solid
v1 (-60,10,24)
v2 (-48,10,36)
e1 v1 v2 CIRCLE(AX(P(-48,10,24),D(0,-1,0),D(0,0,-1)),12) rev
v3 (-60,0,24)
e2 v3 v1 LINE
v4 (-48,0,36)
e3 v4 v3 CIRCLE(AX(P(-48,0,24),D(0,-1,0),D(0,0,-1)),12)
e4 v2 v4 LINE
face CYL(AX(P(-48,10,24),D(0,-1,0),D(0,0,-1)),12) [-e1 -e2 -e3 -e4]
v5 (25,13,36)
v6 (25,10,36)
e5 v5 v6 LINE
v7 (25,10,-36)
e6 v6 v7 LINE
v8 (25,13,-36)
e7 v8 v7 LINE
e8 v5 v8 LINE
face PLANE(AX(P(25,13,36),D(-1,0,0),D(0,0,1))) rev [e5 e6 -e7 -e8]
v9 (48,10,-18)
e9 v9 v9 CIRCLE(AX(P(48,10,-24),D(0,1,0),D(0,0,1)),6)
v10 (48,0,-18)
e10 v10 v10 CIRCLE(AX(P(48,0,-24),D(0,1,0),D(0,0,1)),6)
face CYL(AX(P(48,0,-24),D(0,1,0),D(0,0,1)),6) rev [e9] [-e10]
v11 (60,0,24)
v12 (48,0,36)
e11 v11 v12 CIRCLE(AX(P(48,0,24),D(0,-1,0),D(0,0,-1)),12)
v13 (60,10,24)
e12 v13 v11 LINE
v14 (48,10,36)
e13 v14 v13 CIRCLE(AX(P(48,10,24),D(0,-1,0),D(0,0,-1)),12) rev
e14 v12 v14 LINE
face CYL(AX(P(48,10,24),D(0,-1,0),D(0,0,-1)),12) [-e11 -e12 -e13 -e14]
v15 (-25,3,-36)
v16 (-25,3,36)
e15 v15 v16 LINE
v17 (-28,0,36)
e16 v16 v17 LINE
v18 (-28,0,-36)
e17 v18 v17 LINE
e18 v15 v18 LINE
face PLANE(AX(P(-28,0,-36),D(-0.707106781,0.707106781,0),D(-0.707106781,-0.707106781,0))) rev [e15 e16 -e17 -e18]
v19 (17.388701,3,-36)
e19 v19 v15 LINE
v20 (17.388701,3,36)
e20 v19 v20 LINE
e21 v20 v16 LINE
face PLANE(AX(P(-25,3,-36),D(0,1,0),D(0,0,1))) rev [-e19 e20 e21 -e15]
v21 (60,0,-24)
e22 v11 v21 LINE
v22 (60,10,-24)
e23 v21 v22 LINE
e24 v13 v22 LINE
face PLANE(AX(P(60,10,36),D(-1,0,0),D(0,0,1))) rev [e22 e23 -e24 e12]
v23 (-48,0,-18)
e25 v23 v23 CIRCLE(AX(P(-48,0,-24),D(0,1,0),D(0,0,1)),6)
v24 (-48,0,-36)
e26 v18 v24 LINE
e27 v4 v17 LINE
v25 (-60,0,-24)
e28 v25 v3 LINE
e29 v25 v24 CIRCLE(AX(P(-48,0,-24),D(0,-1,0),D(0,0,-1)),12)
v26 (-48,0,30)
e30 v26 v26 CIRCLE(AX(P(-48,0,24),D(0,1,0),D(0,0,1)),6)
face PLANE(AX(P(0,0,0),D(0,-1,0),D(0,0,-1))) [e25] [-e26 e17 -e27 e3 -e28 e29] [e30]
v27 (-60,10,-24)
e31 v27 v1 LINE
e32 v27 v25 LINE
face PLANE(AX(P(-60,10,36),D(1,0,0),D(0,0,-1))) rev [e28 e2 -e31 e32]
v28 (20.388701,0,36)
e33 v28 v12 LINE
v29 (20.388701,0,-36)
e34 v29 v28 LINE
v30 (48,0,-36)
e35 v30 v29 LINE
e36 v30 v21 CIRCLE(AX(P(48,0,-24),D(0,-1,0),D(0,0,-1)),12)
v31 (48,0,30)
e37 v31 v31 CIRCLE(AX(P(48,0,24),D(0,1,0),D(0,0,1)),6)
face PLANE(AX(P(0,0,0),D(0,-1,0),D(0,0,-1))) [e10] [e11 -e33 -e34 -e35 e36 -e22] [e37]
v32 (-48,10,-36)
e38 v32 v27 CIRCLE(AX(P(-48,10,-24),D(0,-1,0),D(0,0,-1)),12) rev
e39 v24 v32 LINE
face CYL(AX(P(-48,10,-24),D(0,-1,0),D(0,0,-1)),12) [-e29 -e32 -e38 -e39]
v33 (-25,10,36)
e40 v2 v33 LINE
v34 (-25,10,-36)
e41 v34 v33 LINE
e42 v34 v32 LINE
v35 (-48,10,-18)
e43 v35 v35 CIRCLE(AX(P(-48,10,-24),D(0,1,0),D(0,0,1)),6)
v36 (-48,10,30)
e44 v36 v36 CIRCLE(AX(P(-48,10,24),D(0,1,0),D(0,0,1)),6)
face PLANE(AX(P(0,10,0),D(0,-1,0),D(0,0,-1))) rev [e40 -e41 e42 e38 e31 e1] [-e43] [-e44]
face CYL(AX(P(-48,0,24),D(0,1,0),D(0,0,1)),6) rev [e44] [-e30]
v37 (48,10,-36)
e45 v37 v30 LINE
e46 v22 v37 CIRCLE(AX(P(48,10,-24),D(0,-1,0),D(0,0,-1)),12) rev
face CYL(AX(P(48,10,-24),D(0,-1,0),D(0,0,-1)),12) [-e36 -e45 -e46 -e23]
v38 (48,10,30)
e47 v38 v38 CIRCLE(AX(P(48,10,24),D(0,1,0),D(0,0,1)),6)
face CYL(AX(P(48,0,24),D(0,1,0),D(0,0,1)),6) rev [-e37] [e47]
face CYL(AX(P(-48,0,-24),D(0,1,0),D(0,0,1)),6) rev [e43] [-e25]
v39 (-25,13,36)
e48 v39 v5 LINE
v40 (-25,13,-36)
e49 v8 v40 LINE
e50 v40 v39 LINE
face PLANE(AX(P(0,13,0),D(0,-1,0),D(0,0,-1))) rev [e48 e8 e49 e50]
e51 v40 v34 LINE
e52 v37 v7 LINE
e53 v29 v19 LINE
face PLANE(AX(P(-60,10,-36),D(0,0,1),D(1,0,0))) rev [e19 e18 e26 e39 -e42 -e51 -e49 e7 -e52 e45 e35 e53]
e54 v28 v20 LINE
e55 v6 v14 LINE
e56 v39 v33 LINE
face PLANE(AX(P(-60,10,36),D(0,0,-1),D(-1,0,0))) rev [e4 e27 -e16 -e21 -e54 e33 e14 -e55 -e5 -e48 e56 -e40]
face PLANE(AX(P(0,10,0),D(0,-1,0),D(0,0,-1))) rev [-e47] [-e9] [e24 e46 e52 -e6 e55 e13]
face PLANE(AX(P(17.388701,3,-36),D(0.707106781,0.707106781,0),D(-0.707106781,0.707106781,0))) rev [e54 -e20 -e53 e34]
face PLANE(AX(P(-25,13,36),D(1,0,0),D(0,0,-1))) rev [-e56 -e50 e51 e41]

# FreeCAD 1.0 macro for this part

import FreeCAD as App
import Part
import Sketcher

V = App.Vector


def edges_at(feature, points):
    """Names of the edges that pass closest to the given points."""
    edges = feature.Shape.Edges
    near = lambda p: min(range(len(edges)), key=lambda i: edges[i].distToShape(Part.Vertex(*p))[0])
    return sorted({f"Edge{near(p) + 1}" for p in points})

doc = App.newDocument("Part")
body = doc.addObject("PartDesign::Body", "Body")

# Sketch on XZ plane
sketch1 = body.newObject("Sketcher::SketchObject", "Sketch")
sketch1.AttachmentSupport = (doc.getObject("XZ_Plane"), [""])
sketch1.MapMode = "FlatFace"
sketch1.addGeometry(Part.LineSegment(V(-60, -36, 0), V(-60, 36, 0)), False)
sketch1.addGeometry(Part.LineSegment(V(-60, 36, 0), V(60, 36, 0)), False)
sketch1.addGeometry(Part.LineSegment(V(60, 36, 0), V(60, -36, 0)), False)
sketch1.addGeometry(Part.LineSegment(V(60, -36, 0), V(-60, -36, 0)), False)
sketch1.addConstraint(Sketcher.Constraint("Coincident", 0, 2, 1, 1))
sketch1.addConstraint(Sketcher.Constraint("Coincident", 1, 2, 2, 1))
sketch1.addConstraint(Sketcher.Constraint("Coincident", 2, 2, 3, 1))
sketch1.addConstraint(Sketcher.Constraint("Coincident", 3, 2, 0, 1))
sketch1.addConstraint(Sketcher.Constraint("Vertical", 0))
sketch1.addConstraint(Sketcher.Constraint("Horizontal", 1))
sketch1.addConstraint(Sketcher.Constraint("Vertical", 2))
sketch1.addConstraint(Sketcher.Constraint("Horizontal", 3))
sketch1.addConstraint(Sketcher.Constraint("Symmetric", 0, 2, 2, 2, -1, 1))
sketch1.addConstraint(Sketcher.Constraint("DistanceX", 1, 1, 1, 2, 120.0))
sketch1.addConstraint(Sketcher.Constraint("DistanceY", 0, 1, 0, 2, 72.0))
pad1 = body.newObject("PartDesign::Pad", "Pad")
pad1.Profile = sketch1
pad1.Length = 10
pad1.Reversed = True

# Sketch on XZ plane
sketch2 = body.newObject("Sketcher::SketchObject", "Sketch001")
sketch2.AttachmentSupport = (doc.getObject("XZ_Plane"), [""])
sketch2.MapMode = "FlatFace"
sketch2.AttachmentOffset = App.Placement(V(0, 0, -10), App.Rotation())
sketch2.addGeometry(Part.Circle(V(-48, -24, 0), V(0, 0, 1), 6), False)
sketch2.addGeometry(Part.Circle(V(-48, 24, 0), V(0, 0, 1), 6), False)
sketch2.addGeometry(Part.Circle(V(48, 24, 0), V(0, 0, 1), 6), False)
sketch2.addGeometry(Part.Circle(V(48, -24, 0), V(0, 0, 1), 6), False)
sketch2.addConstraint(Sketcher.Constraint("Equal", 0, 1))
sketch2.addConstraint(Sketcher.Constraint("Equal", 1, 2))
sketch2.addConstraint(Sketcher.Constraint("Equal", 2, 3))
sketch2.addConstraint(Sketcher.Constraint("Symmetric", 0, 3, 2, 3, -1, 1))
sketch2.addConstraint(Sketcher.Constraint("Symmetric", 1, 3, 3, 3, -1, 1))
sketch2.addConstraint(Sketcher.Constraint("Symmetric", 1, 3, 2, 3, -2))
sketch2.addConstraint(Sketcher.Constraint("Diameter", 0, 12.0))
sketch2.addConstraint(Sketcher.Constraint("DistanceX", 0, 3, -1, 1, 48.0))
sketch2.addConstraint(Sketcher.Constraint("DistanceY", 0, 3, -1, 1, 24.0))
pocket1 = body.newObject("PartDesign::Pocket", "Pocket")
pocket1.Profile = sketch2
pocket1.Type = "ThroughAll"
pocket1.Reversed = True
doc.recompute()

fillet = body.newObject("PartDesign::Fillet", "Fillet")
fillet.Base = (pocket1, edges_at(pocket1, [
    (60, 5, 36),
    (-60, 5, 36),
    (-60, 5, -36),
    (60, 5, -36),
]))
fillet.Radius = 12

# Sketch on XY plane
sketch3 = body.newObject("Sketcher::SketchObject", "Sketch002")
sketch3.AttachmentSupport = (doc.getObject("XY_Plane"), [""])
sketch3.MapMode = "FlatFace"
sketch3.AttachmentOffset = App.Placement(V(0, 0, 36), App.Rotation())
sketch3.addGeometry(Part.LineSegment(V(-25, 3, 0), V(-28, 0, 0)), False)
sketch3.addGeometry(Part.LineSegment(V(-28, 0, 0), V(20.4, 0, 0)), False)
sketch3.addGeometry(Part.LineSegment(V(20.4, 0, 0), V(17.4, 3, 0)), False)
sketch3.addGeometry(Part.LineSegment(V(17.4, 3, 0), V(-25, 3, 0)), False)
sketch3.addConstraint(Sketcher.Constraint("Coincident", 0, 2, 1, 1))
sketch3.addConstraint(Sketcher.Constraint("Coincident", 1, 2, 2, 1))
sketch3.addConstraint(Sketcher.Constraint("Coincident", 2, 2, 3, 1))
sketch3.addConstraint(Sketcher.Constraint("Coincident", 3, 2, 0, 1))
sketch3.addConstraint(Sketcher.Constraint("Horizontal", 1))
sketch3.addConstraint(Sketcher.Constraint("Horizontal", 3))
sketch3.addConstraint(Sketcher.Constraint("PointOnObject", 0, 2, -1))
sketch3.addConstraint(Sketcher.Constraint("Perpendicular", 0, 2))
sketch3.addConstraint(Sketcher.Constraint("Equal", 0, 2))
sketch3.addConstraint(Sketcher.Constraint("DistanceX", 0, 2, -1, 1, 28.0))
sketch3.addConstraint(Sketcher.Constraint("DistanceY", -1, 1, 2, 2, 3.0))
sketch3.addConstraint(Sketcher.Constraint("DistanceX", 1, 1, 1, 2, 48.388701))
pocket2 = body.newObject("PartDesign::Pocket", "Pocket001")
pocket2.Profile = sketch3
pocket2.Type = "ThroughAll"

# Sketch on XZ plane
sketch4 = body.newObject("Sketcher::SketchObject", "Sketch003")
sketch4.AttachmentSupport = (doc.getObject("XZ_Plane"), [""])
sketch4.MapMode = "FlatFace"
sketch4.AttachmentOffset = App.Placement(V(0, 0, -10), App.Rotation())
sketch4.addGeometry(Part.LineSegment(V(-25, -36, 0), V(-25, 36, 0)), False)
sketch4.addGeometry(Part.LineSegment(V(-25, 36, 0), V(25, 36, 0)), False)
sketch4.addGeometry(Part.LineSegment(V(25, 36, 0), V(25, -36, 0)), False)
sketch4.addGeometry(Part.LineSegment(V(25, -36, 0), V(-25, -36, 0)), False)
sketch4.addConstraint(Sketcher.Constraint("Coincident", 0, 2, 1, 1))
sketch4.addConstraint(Sketcher.Constraint("Coincident", 1, 2, 2, 1))
sketch4.addConstraint(Sketcher.Constraint("Coincident", 2, 2, 3, 1))
sketch4.addConstraint(Sketcher.Constraint("Coincident", 3, 2, 0, 1))
sketch4.addConstraint(Sketcher.Constraint("Vertical", 0))
sketch4.addConstraint(Sketcher.Constraint("Horizontal", 1))
sketch4.addConstraint(Sketcher.Constraint("Vertical", 2))
sketch4.addConstraint(Sketcher.Constraint("Horizontal", 3))
sketch4.addConstraint(Sketcher.Constraint("Symmetric", 0, 2, 2, 2, -1, 1))
sketch4.addConstraint(Sketcher.Constraint("DistanceX", 1, 1, 1, 2, 50.0))
sketch4.addConstraint(Sketcher.Constraint("DistanceY", 0, 1, 0, 2, 72.0))
pad2 = body.newObject("PartDesign::Pad", "Pad001")
pad2.Profile = sketch4
pad2.Length = 3
pad2.Reversed = True

doc.recompute()
